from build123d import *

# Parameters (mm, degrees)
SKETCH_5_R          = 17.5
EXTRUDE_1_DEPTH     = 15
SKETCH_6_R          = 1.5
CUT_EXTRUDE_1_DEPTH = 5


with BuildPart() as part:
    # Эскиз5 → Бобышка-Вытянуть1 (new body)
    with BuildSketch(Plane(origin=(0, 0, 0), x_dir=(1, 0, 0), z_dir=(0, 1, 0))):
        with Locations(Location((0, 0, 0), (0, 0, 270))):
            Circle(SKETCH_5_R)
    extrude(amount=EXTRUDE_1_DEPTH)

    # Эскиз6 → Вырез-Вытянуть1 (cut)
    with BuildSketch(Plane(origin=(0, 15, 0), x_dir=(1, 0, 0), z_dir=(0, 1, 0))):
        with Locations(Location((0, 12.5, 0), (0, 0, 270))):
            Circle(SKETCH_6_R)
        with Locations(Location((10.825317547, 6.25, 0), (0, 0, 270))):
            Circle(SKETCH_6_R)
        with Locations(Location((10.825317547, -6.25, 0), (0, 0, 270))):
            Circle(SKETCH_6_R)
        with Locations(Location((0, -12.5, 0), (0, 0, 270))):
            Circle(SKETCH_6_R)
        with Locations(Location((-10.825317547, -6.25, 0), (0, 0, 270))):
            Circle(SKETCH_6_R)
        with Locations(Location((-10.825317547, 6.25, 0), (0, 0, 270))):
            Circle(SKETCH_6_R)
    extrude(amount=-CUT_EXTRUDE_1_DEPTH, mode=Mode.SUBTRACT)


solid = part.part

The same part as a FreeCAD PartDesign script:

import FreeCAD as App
import Part
import Sketcher

V = App.Vector

doc = App.newDocument("Part")
body = doc.addObject("PartDesign::Body", "Body")

# Sketch on XZ plane
sketch1 = body.newObject("Sketcher::SketchObject", "Sketch")
sketch1.AttachmentSupport = (doc.getObject("XZ_Plane"), [""])
sketch1.MapMode = "FlatFace"
sketch1.addGeometry(Part.Circle(V(0, 0, 0), V(0, 0, 1), 18), False)
sketch1.addConstraint(Sketcher.Constraint("Coincident", 0, 3, -1, 1))
sketch1.addConstraint(Sketcher.Constraint("Diameter", 0, 35.0))
pad1 = body.newObject("PartDesign::Pad", "Pad")
pad1.Profile = sketch1
pad1.Length = 15
pad1.Reversed = True

# Sketch on XZ plane
sketch2 = body.newObject("Sketcher::SketchObject", "Sketch001")
sketch2.AttachmentSupport = (doc.getObject("XZ_Plane"), [""])
sketch2.MapMode = "FlatFace"
sketch2.AttachmentOffset = App.Placement(V(0, 0, -15), App.Rotation())
sketch2.addGeometry(Part.Circle(V(0, -12.5, 0), V(0, 0, 1), 1.5), False)
sketch2.addGeometry(Part.Circle(V(10.8, -6.2, 0), V(0, 0, 1), 1.5), False)
sketch2.addGeometry(Part.Circle(V(10.8, 6.2, 0), V(0, 0, 1), 1.5), False)
sketch2.addGeometry(Part.Circle(V(0, 12.5, 0), V(0, 0, 1), 1.5), False)
sketch2.addGeometry(Part.Circle(V(-10.8, 6.2, 0), V(0, 0, 1), 1.5), False)
sketch2.addGeometry(Part.Circle(V(-10.8, -6.2, 0), V(0, 0, 1), 1.5), False)
sketch2.addConstraint(Sketcher.Constraint("Equal", 0, 1))
sketch2.addConstraint(Sketcher.Constraint("Equal", 1, 2))
sketch2.addConstraint(Sketcher.Constraint("Equal", 2, 3))
sketch2.addConstraint(Sketcher.Constraint("Equal", 3, 4))
sketch2.addConstraint(Sketcher.Constraint("Equal", 4, 5))
sketch2.addConstraint(Sketcher.Constraint("Symmetric", 0, 3, 3, 3, -1, 1))
sketch2.addConstraint(Sketcher.Constraint("Symmetric", 1, 3, 4, 3, -1, 1))
sketch2.addConstraint(Sketcher.Constraint("Symmetric", 2, 3, 5, 3, -1, 1))
sketch2.addConstraint(Sketcher.Constraint("Symmetric", 2, 3, 4, 3, -2))
sketch2.addConstraint(Sketcher.Constraint("PointOnObject", 0, 3, -2))
sketch2.addConstraint(Sketcher.Constraint("Diameter", 0, 3.0))
sketch2.addConstraint(Sketcher.Constraint("DistanceY", 0, 3, 3, 3, 25.0))
sketch2.addConstraint(Sketcher.Constraint("DistanceY", 1, 3, 2, 3, 12.5))
sketch2.addConstraint(Sketcher.Constraint("DistanceX", -1, 1, 1, 3, 10.825318))
pocket1 = body.newObject("PartDesign::Pocket", "Pocket")
pocket1.Profile = sketch2
pocket1.Length = 5
pocket1.Reversed = True

doc.recompute()
